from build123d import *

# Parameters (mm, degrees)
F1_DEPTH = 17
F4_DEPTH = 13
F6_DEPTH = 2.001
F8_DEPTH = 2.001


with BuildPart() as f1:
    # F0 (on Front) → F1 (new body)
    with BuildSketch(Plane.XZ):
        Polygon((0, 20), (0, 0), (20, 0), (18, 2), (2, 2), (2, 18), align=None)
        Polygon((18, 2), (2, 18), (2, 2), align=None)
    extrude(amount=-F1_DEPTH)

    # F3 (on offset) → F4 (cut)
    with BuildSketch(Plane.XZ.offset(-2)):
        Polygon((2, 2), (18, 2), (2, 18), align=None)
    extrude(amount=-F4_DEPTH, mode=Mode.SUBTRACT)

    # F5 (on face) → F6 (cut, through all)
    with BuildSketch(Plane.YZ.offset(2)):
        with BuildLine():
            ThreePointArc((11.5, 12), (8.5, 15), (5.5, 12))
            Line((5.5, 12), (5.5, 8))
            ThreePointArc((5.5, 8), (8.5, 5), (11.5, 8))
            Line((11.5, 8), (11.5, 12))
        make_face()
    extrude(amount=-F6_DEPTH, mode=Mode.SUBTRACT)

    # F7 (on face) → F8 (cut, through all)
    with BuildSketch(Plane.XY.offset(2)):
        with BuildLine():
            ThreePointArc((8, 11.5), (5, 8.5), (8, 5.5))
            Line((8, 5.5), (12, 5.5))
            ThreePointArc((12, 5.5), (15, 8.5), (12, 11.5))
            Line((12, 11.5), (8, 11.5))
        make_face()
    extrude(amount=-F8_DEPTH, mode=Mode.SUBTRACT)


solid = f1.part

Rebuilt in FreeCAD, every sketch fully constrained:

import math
import FreeCAD as App
import Part
import Sketcher

V = App.Vector


def add_polygon(sketch, points):
    """Adds a closed chain of lines whose ends are joined by coincident constraints."""
    first, n = sketch.GeometryCount, len(points)
    for a, b in zip(points, points[1:] + points[:1]):
        sketch.addGeometry(Part.LineSegment(App.Vector(*a, 0), App.Vector(*b, 0)), False)
    for i in range(n):
        sketch.addConstraint(Sketcher.Constraint("Coincident", first + i, 2, first + (i + 1) % n, 1))

doc = App.newDocument("Part")
body = doc.addObject("PartDesign::Body", "Body")

# Sketch on XZ plane
sketch1 = body.newObject("Sketcher::SketchObject", "Sketch")
sketch1.AttachmentSupport = (doc.getObject("XZ_Plane"), [""])
sketch1.MapMode = "FlatFace"
add_polygon(sketch1, [(0, 20), (0, 0), (20, 0)])  # lines 0-2
sketch1.addConstraint([
    Sketcher.Constraint("Vertical", 0),
    Sketcher.Constraint("Horizontal", 1),
    Sketcher.Constraint("Coincident", 0, 2, -1, 1),
    Sketcher.Constraint("Equal", 1, 0),
    Sketcher.Constraint("DistanceX", 1, 1, 1, 2, 20.0),
])
pad1 = body.newObject("PartDesign::Pad", "Pad")
pad1.Profile = sketch1
pad1.Length = 17
pad1.Reversed = True

# Sketch on XZ plane
sketch2 = body.newObject("Sketcher::SketchObject", "Sketch001")
sketch2.AttachmentSupport = (doc.getObject("XZ_Plane"), [""])
sketch2.MapMode = "FlatFace"
sketch2.AttachmentOffset = App.Placement(V(0, 0, -2), App.Rotation())
add_polygon(sketch2, [(2, 2), (18, 2), (2, 18)])  # lines 0-2
sketch2.addConstraint([
    Sketcher.Constraint("Horizontal", 0),
    Sketcher.Constraint("Vertical", 2),
    Sketcher.Constraint("Equal", 0, 2),
    Sketcher.Constraint("DistanceX", 0, 1, 0, 2, 16.0),
    Sketcher.Constraint("DistanceX", -1, 1, 0, 2, 18.0),
    Sketcher.Constraint("DistanceY", -1, 1, 0, 2, 2.0),
])
pocket1 = body.newObject("PartDesign::Pocket", "Pocket")
pocket1.Profile = sketch2
pocket1.Length = 13

# Sketch on YZ plane
sketch3 = body.newObject("Sketcher::SketchObject", "Sketch002")
sketch3.AttachmentSupport = (doc.getObject("YZ_Plane"), [""])
sketch3.MapMode = "FlatFace"
sketch3.AttachmentOffset = App.Placement(V(0, 0, 2), App.Rotation())
sketch3.addGeometry([
    Part.ArcOfCircle(Part.Circle(V(8.5, 12, 0), V(0, 0, 1), 3), math.radians(0), math.radians(180)),
    Part.LineSegment(V(5.5, 12, 0), V(5.5, 8, 0)),
    Part.ArcOfCircle(Part.Circle(V(8.5, 8, 0), V(0, 0, 1), 3), math.radians(180), math.radians(360)),
    Part.LineSegment(V(11.5, 8, 0), V(11.5, 12, 0)),
], False)
sketch3.addConstraint([
    Sketcher.Constraint("Tangent", 0, 2, 1, 1),
    Sketcher.Constraint("Tangent", 1, 2, 2, 1),
    Sketcher.Constraint("Tangent", 2, 2, 3, 1),
    Sketcher.Constraint("Tangent", 3, 2, 0, 1),
    Sketcher.Constraint("Vertical", 1),
    Sketcher.Constraint("Vertical", 3),
    Sketcher.Constraint("Radius", 0, 3.0),
    Sketcher.Constraint("DistanceY", 1, 2, 1, 1, 4.0),
    Sketcher.Constraint("DistanceY", -1, 1, 0, 3, 12.0),
    Sketcher.Constraint("DistanceX", -1, 1, 0, 3, 8.5),
])
pocket2 = body.newObject("PartDesign::Pocket", "Pocket001")
pocket2.Profile = sketch3
pocket2.Type = "ThroughAll"

# Sketch on XY plane
sketch4 = body.newObject("Sketcher::SketchObject", "Sketch003")
sketch4.AttachmentSupport = (doc.getObject("XY_Plane"), [""])
sketch4.MapMode = "FlatFace"
sketch4.AttachmentOffset = App.Placement(V(0, 0, 2), App.Rotation())
sketch4.addGeometry([
    Part.ArcOfCircle(Part.Circle(V(8, 8.5, 0), V(0, 0, 1), 3), math.radians(90), math.radians(270)),
    Part.LineSegment(V(8, 5.5, 0), V(12, 5.5, 0)),
    Part.ArcOfCircle(Part.Circle(V(12, 8.5, 0), V(0, 0, 1), 3), math.radians(-90), math.radians(90)),
    Part.LineSegment(V(12, 11.5, 0), V(8, 11.5, 0)),
], False)
sketch4.addConstraint([
    Sketcher.Constraint("Tangent", 0, 2, 1, 1),
    Sketcher.Constraint("Tangent", 1, 2, 2, 1),
    Sketcher.Constraint("Tangent", 2, 2, 3, 1),
    Sketcher.Constraint("Tangent", 3, 2, 0, 1),
    Sketcher.Constraint("Horizontal", 1),
    Sketcher.Constraint("Horizontal", 3),
    Sketcher.Constraint("Radius", 0, 3.0),
    Sketcher.Constraint("DistanceX", 1, 1, 1, 2, 4.0),
    Sketcher.Constraint("DistanceX", -1, 1, 0, 3, 8.0),
    Sketcher.Constraint("DistanceY", -1, 1, 0, 3, 8.5),
])
pocket3 = body.newObject("PartDesign::Pocket", "Pocket002")
pocket3.Profile = sketch4
pocket3.Type = "ThroughAll"

doc.recompute()
